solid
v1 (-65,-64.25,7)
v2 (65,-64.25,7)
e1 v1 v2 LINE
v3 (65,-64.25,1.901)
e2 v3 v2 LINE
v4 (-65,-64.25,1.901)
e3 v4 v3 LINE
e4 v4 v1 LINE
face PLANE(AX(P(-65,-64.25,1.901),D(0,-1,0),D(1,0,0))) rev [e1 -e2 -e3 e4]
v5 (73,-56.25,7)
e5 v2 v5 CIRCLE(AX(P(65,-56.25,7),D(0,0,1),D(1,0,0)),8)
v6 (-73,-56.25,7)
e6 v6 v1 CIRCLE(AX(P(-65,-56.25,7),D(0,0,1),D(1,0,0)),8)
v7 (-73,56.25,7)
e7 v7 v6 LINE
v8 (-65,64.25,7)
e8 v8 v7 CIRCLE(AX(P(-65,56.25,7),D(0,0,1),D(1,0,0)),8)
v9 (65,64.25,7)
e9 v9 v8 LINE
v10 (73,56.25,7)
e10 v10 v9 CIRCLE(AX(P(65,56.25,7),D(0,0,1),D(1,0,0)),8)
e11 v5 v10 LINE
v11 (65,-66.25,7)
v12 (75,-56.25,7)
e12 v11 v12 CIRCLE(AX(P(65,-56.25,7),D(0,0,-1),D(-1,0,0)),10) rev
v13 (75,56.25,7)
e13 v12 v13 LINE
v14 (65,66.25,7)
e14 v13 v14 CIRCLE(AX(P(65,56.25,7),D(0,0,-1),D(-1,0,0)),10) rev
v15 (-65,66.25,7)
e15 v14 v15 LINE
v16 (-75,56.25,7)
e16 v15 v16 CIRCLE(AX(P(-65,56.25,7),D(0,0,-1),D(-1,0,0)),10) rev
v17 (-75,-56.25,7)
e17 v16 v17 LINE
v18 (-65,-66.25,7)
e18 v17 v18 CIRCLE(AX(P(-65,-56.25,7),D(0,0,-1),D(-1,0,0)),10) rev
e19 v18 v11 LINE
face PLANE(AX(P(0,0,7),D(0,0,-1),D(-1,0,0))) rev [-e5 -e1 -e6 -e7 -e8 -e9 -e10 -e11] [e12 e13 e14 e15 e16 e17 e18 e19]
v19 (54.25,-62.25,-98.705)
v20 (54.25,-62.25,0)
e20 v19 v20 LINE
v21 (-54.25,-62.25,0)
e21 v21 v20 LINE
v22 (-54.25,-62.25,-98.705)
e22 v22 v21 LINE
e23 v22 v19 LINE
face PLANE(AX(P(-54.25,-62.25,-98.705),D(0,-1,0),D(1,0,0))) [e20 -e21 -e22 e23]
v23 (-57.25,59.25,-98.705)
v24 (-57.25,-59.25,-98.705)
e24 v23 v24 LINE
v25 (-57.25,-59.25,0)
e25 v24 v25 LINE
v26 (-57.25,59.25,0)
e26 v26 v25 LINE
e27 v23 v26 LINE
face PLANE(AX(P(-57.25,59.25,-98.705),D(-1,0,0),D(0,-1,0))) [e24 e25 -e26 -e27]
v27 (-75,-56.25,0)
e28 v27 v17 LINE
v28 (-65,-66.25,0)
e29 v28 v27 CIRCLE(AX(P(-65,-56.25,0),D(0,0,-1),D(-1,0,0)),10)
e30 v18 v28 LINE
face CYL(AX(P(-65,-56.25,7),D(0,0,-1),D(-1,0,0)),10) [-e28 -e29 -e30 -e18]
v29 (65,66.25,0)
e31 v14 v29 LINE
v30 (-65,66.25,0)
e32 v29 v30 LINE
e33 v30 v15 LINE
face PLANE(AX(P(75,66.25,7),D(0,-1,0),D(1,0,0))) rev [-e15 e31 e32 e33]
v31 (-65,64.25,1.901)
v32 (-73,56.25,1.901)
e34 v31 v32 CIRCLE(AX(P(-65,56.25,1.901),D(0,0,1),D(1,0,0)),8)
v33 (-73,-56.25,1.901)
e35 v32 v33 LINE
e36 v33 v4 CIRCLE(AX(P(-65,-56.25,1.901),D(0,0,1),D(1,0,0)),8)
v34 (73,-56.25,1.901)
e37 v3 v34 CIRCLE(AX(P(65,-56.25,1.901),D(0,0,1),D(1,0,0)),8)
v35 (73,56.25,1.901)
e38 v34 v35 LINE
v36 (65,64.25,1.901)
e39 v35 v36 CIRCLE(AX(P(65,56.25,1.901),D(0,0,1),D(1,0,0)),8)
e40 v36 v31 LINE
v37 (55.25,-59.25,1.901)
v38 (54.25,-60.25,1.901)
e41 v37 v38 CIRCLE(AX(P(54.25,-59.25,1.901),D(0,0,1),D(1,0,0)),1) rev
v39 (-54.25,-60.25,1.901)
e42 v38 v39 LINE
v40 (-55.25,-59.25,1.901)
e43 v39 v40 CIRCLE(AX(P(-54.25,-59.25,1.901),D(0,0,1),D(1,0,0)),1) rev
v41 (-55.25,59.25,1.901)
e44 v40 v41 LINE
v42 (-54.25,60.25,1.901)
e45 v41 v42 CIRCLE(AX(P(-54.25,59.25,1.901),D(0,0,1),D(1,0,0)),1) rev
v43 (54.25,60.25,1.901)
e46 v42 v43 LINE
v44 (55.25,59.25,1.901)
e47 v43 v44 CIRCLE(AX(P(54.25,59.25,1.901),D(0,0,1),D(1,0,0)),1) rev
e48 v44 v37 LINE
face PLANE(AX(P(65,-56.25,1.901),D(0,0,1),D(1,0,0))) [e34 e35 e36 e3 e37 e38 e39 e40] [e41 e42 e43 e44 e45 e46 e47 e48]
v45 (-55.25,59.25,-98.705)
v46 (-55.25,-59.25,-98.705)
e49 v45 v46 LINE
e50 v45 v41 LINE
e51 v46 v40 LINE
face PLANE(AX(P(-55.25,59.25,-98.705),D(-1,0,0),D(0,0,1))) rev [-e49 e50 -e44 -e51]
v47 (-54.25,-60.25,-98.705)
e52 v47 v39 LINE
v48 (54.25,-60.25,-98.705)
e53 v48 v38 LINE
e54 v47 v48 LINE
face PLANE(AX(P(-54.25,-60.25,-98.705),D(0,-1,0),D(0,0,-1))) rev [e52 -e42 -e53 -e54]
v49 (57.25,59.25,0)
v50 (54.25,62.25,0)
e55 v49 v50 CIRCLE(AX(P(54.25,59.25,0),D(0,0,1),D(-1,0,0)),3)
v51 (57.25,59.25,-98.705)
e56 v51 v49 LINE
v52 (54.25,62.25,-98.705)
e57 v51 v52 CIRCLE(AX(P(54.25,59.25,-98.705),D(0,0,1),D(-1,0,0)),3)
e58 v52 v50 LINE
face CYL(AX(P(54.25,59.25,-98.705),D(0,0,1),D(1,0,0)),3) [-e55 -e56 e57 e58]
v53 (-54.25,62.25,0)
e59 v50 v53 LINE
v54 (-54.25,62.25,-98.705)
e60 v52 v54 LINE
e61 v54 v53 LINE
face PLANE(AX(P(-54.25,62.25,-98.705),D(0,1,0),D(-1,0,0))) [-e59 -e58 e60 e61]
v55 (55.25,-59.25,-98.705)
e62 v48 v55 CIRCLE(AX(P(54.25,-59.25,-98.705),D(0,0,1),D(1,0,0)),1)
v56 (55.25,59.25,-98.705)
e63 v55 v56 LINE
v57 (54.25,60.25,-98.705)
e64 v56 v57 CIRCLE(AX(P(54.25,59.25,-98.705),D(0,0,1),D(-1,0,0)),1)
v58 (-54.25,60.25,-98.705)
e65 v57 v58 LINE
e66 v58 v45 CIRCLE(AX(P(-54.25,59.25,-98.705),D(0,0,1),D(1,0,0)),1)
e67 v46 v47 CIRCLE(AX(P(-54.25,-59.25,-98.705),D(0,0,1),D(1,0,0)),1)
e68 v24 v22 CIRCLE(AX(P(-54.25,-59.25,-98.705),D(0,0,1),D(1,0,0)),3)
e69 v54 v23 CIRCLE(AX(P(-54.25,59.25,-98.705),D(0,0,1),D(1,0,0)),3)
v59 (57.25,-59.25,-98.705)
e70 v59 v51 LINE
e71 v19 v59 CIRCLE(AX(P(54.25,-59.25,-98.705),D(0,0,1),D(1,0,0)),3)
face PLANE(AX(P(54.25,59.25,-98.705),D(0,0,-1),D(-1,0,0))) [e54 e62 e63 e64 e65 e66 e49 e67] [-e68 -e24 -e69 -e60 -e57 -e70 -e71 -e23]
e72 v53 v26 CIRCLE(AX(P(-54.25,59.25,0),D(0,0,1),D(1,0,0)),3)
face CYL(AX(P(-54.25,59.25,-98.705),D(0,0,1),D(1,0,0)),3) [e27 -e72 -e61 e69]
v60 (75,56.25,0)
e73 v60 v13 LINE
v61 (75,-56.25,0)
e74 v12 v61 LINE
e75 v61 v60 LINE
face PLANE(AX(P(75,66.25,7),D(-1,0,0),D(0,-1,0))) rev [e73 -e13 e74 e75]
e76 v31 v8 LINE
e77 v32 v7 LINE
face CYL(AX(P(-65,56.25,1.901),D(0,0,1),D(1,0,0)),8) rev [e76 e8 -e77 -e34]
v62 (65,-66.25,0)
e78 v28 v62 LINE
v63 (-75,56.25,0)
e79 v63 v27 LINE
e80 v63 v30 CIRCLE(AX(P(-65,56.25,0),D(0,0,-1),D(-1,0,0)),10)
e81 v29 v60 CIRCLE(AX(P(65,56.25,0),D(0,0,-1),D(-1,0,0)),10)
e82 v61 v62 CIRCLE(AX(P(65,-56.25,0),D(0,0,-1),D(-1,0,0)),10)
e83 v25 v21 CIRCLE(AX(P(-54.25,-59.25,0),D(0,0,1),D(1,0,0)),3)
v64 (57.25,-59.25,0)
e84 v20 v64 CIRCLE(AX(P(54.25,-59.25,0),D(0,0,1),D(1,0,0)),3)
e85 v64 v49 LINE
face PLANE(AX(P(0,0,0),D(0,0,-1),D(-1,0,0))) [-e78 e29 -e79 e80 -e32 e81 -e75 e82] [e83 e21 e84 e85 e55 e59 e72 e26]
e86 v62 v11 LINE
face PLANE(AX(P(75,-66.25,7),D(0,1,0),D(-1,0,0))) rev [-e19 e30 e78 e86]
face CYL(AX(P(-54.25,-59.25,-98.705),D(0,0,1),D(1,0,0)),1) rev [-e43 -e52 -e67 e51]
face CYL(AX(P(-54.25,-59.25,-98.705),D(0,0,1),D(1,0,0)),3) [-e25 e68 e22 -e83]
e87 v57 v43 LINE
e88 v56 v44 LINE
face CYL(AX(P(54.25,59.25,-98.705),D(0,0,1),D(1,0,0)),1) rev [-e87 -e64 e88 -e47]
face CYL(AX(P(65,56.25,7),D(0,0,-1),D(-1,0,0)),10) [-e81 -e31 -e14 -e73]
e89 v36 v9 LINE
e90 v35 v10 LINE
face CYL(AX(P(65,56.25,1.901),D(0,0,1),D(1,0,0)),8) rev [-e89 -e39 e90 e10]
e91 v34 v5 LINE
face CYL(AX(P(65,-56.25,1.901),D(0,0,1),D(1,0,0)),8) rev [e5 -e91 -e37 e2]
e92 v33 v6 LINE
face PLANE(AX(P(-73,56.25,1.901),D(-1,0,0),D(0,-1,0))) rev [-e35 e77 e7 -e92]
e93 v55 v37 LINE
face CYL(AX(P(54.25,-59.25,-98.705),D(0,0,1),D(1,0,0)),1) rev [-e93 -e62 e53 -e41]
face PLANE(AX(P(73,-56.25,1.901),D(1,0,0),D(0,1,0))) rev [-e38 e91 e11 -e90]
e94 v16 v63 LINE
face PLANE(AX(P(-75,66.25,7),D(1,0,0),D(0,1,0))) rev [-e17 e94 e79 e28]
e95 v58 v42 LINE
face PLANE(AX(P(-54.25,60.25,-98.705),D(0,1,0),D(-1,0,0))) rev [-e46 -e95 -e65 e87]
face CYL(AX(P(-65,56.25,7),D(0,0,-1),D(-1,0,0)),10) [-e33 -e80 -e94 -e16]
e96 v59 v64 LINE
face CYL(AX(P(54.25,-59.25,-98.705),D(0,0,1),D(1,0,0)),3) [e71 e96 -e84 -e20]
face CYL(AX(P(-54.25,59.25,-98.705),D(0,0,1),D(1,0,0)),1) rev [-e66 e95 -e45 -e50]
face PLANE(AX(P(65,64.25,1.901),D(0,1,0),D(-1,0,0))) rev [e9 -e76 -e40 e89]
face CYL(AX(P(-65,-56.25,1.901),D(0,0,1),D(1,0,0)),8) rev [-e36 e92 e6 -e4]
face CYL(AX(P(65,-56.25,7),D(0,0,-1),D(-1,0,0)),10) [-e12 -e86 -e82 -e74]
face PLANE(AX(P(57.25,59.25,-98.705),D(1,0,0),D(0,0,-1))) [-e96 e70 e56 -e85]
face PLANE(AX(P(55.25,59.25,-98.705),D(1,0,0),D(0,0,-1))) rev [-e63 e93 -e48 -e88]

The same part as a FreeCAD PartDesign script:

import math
import FreeCAD as App
import Part
import Sketcher

V = App.Vector


def edges_at(feature, points):
    """Names of the edges that pass closest to the given points."""
    edges = feature.Shape.Edges
    near = lambda p: min(range(len(edges)), key=lambda i: edges[i].distToShape(Part.Vertex(*p))[0])
    return sorted({f"Edge{near(p) + 1}" for p in points})


def add_polygon(sketch, points):
    """Adds a closed chain of lines whose ends are joined by coincident constraints."""
    first, n = sketch.GeometryCount, len(points)
    for a, b in zip(points, points[1:] + points[:1]):
        sketch.addGeometry(Part.LineSegment(App.Vector(*a, 0), App.Vector(*b, 0)), False)
    for i in range(n):
        sketch.addConstraint(Sketcher.Constraint("Coincident", first + i, 2, first + (i + 1) % n, 1))

doc = App.newDocument("Part")
body = doc.addObject("PartDesign::Body", "Body")

sketch1 = body.newObject("Sketcher::SketchObject", "Sketch")
sketch1.AttachmentSupport = (doc.getObject("XY_Plane"), [""])
sketch1.MapMode = "FlatFace"
sketch1.addGeometry(Part.LineSegment(V(54.25, 62.25, 0), V(-54.25, 62.25, 0)), False)
sketch1.addGeometry(Part.ArcOfCircle(Part.Circle(V(-54.25, 59.25, 0), V(0, 0, 1), 3), math.radians(90), math.radians(180)), False)
sketch1.addGeometry(Part.LineSegment(V(-57.25, 59.25, 0), V(-57.25, -59.25, 0)), False)
sketch1.addGeometry(Part.ArcOfCircle(Part.Circle(V(-54.25, -59.25, 0), V(0, 0, 1), 3), math.radians(180), math.radians(270)), False)
sketch1.addGeometry(Part.LineSegment(V(-54.25, -62.25, 0), V(54.25, -62.25, 0)), False)
sketch1.addGeometry(Part.ArcOfCircle(Part.Circle(V(54.25, -59.25, 0), V(0, 0, 1), 3), math.radians(-90), math.radians(0)), False)
sketch1.addGeometry(Part.LineSegment(V(57.25, -59.25, 0), V(57.25, 59.25, 0)), False)
sketch1.addGeometry(Part.ArcOfCircle(Part.Circle(V(54.25, 59.25, 0), V(0, 0, 1), 3), math.radians(0), math.radians(90)), False)
sketch1.addGeometry(Part.ArcOfCircle(Part.Circle(V(-54.25, 59.25, 0), V(0, 0, 1), 1), math.radians(90), math.radians(180)), False)
sketch1.addGeometry(Part.LineSegment(V(-54.25, 60.25, 0), V(54.25, 60.25, 0)), False)
sketch1.addGeometry(Part.ArcOfCircle(Part.Circle(V(54.25, 59.25, 0), V(0, 0, 1), 1), math.radians(0), math.radians(90)), False)
sketch1.addGeometry(Part.LineSegment(V(55.25, 59.25, 0), V(55.25, -59.25, 0)), False)
sketch1.addGeometry(Part.ArcOfCircle(Part.Circle(V(54.25, -59.25, 0), V(0, 0, 1), 1), math.radians(-90), math.radians(0)), False)
sketch1.addGeometry(Part.LineSegment(V(54.25, -60.25, 0), V(-54.25, -60.25, 0)), False)
sketch1.addGeometry(Part.ArcOfCircle(Part.Circle(V(-54.25, -59.25, 0), V(0, 0, 1), 1), math.radians(-180), math.radians(-90)), False)
sketch1.addGeometry(Part.LineSegment(V(-55.25, -59.25, 0), V(-55.25, 59.25, 0)), False)
sketch1.addConstraint(Sketcher.Constraint("Tangent", 0, 2, 1, 1))
sketch1.addConstraint(Sketcher.Constraint("Tangent", 1, 2, 2, 1))
sketch1.addConstraint(Sketcher.Constraint("Tangent", 2, 2, 3, 1))
sketch1.addConstraint(Sketcher.Constraint("Tangent", 3, 2, 4, 1))
sketch1.addConstraint(Sketcher.Constraint("Tangent", 4, 2, 5, 1))
sketch1.addConstraint(Sketcher.Constraint("Tangent", 5, 2, 6, 1))
sketch1.addConstraint(Sketcher.Constraint("Tangent", 6, 2, 7, 1))
sketch1.addConstraint(Sketcher.Constraint("Tangent", 7, 2, 0, 1))
sketch1.addConstraint(Sketcher.Constraint("Tangent", 8, 1, 9, 1))
sketch1.addConstraint(Sketcher.Constraint("Tangent", 9, 2, 10, 2))
sketch1.addConstraint(Sketcher.Constraint("Tangent", 10, 1, 11, 1))
sketch1.addConstraint(Sketcher.Constraint("Tangent", 11, 2, 12, 2))
sketch1.addConstraint(Sketcher.Constraint("Tangent", 12, 1, 13, 1))
sketch1.addConstraint(Sketcher.Constraint("Tangent", 13, 2, 14, 2))
sketch1.addConstraint(Sketcher.Constraint("Tangent", 14, 1, 15, 1))
sketch1.addConstraint(Sketcher.Constraint("Tangent", 15, 2, 8, 2))
sketch1.addConstraint(Sketcher.Constraint("Horizontal", 0))
sketch1.addConstraint(Sketcher.Constraint("Vertical", 2))
sketch1.addConstraint(Sketcher.Constraint("Horizontal", 4))
sketch1.addConstraint(Sketcher.Constraint("Vertical", 6))
sketch1.addConstraint(Sketcher.Constraint("Horizontal", 9))
sketch1.addConstraint(Sketcher.Constraint("Vertical", 11))
sketch1.addConstraint(Sketcher.Constraint("Horizontal", 13))
sketch1.addConstraint(Sketcher.Constraint("Vertical", 15))
sketch1.addConstraint(Sketcher.Constraint("Coincident", 8, 3, 1, 3))
sketch1.addConstraint(Sketcher.Constraint("Coincident", 10, 3, 7, 3))
sketch1.addConstraint(Sketcher.Constraint("Coincident", 12, 3, 5, 3))
sketch1.addConstraint(Sketcher.Constraint("Equal", 1, 3))
sketch1.addConstraint(Sketcher.Constraint("Equal", 3, 5))
sketch1.addConstraint(Sketcher.Constraint("Equal", 5, 7))
sketch1.addConstraint(Sketcher.Constraint("Equal", 12, 14))
sketch1.addConstraint(Sketcher.Constraint("Symmetric", 1, 3, 5, 3, -1, 1))
sketch1.addConstraint(Sketcher.Constraint("Radius", 1, 3.0))
sketch1.addConstraint(Sketcher.Constraint("Radius", 8, 1.0))
sketch1.addConstraint(Sketcher.Constraint("DistanceX", 0, 2, 0, 1, 108.5))
sketch1.addConstraint(Sketcher.Constraint("DistanceY", 2, 2, 2, 1, 118.5))
pad1 = body.newObject("PartDesign::Pad", "Pad")
pad1.Profile = sketch1
pad1.Length = 98.705
pad1.Reversed = True

sketch2 = body.newObject("Sketcher::SketchObject", "Sketch001")
sketch2.AttachmentSupport = (doc.getObject("XY_Plane"), [""])
sketch2.MapMode = "FlatFace"
sketch2.AttachmentOffset = App.Placement(V(0, 0, 7), App.Rotation())
add_polygon(sketch2, [(-75, 66.25), (-75, -66.25), (75, -66.25), (75, 66.25)])
sketch2.addGeometry(Part.LineSegment(V(54.25, -60.25, 0), V(-54.25, -60.25, 0)), False)
sketch2.addGeometry(Part.ArcOfCircle(Part.Circle(V(-54.25, -59.25, 0), V(0, 0, 1), 1), math.radians(-180), math.radians(-90)), False)
sketch2.addGeometry(Part.LineSegment(V(-55.25, -59.25, 0), V(-55.25, 59.25, 0)), False)
sketch2.addGeometry(Part.ArcOfCircle(Part.Circle(V(-54.25, 59.25, 0), V(0, 0, 1), 1), math.radians(90), math.radians(180)), False)
sketch2.addGeometry(Part.LineSegment(V(-54.25, 60.25, 0), V(54.25, 60.25, 0)), False)
sketch2.addGeometry(Part.ArcOfCircle(Part.Circle(V(54.25, 59.25, 0), V(0, 0, 1), 1), math.radians(0), math.radians(90)), False)
sketch2.addGeometry(Part.LineSegment(V(55.25, 59.25, 0), V(55.25, -59.25, 0)), False)
sketch2.addGeometry(Part.ArcOfCircle(Part.Circle(V(54.25, -59.25, 0), V(0, 0, 1), 1), math.radians(-90), math.radians(0)), False)
sketch2.addConstraint(Sketcher.Constraint("Tangent", 4, 2, 5, 2))
sketch2.addConstraint(Sketcher.Constraint("Tangent", 5, 1, 6, 1))
sketch2.addConstraint(Sketcher.Constraint("Tangent", 6, 2, 7, 2))
sketch2.addConstraint(Sketcher.Constraint("Tangent", 7, 1, 8, 1))
sketch2.addConstraint(Sketcher.Constraint("Tangent", 8, 2, 9, 2))
sketch2.addConstraint(Sketcher.Constraint("Tangent", 9, 1, 10, 1))
sketch2.addConstraint(Sketcher.Constraint("Tangent", 10, 2, 11, 2))
sketch2.addConstraint(Sketcher.Constraint("Tangent", 11, 1, 4, 1))
sketch2.addConstraint(Sketcher.Constraint("Vertical", 0))
sketch2.addConstraint(Sketcher.Constraint("Horizontal", 1))
sketch2.addConstraint(Sketcher.Constraint("Vertical", 2))
sketch2.addConstraint(Sketcher.Constraint("Horizontal", 3))
sketch2.addConstraint(Sketcher.Constraint("Horizontal", 4))
sketch2.addConstraint(Sketcher.Constraint("Vertical", 6))
sketch2.addConstraint(Sketcher.Constraint("Horizontal", 8))
sketch2.addConstraint(Sketcher.Constraint("Vertical", 10))
sketch2.addConstraint(Sketcher.Constraint("Equal", 5, 7))
sketch2.addConstraint(Sketcher.Constraint("Equal", 7, 9))
sketch2.addConstraint(Sketcher.Constraint("Equal", 9, 11))
sketch2.addConstraint(Sketcher.Constraint("Symmetric", 5, 3, 9, 3, -1, 1))
sketch2.addConstraint(Sketcher.Constraint("Symmetric", 0, 2, 2, 2, -1, 1))
sketch2.addConstraint(Sketcher.Constraint("Radius", 5, 1.0))
sketch2.addConstraint(Sketcher.Constraint("DistanceX", 1, 1, 1, 2, 150.0))
sketch2.addConstraint(Sketcher.Constraint("DistanceX", 4, 2, 4, 1, 108.5))
sketch2.addConstraint(Sketcher.Constraint("DistanceY", 0, 2, 0, 1, 132.5))
sketch2.addConstraint(Sketcher.Constraint("DistanceY", 6, 1, 6, 2, 118.5))
pad2 = body.newObject("PartDesign::Pad", "Pad001")
pad2.Profile = sketch2
pad2.Length = 7
pad2.Reversed = True
doc.recompute()

fillet = body.newObject("PartDesign::Fillet", "Fillet")
fillet.Base = (pad2, edges_at(pad2, [
    (-75, 66.25, 3.5),
    (-75, -66.25, 3.5),
    (75, -66.25, 3.5),
    (75, 66.25, 3.5),
]))
fillet.Radius = 10

sketch3 = body.newObject("Sketcher::SketchObject", "Sketch002")
sketch3.AttachmentSupport = (doc.getObject("XY_Plane"), [""])
sketch3.MapMode = "FlatFace"
sketch3.AttachmentOffset = App.Placement(V(0, 0, 7), App.Rotation())
sketch3.addGeometry(Part.LineSegment(V(73, -56.25, 0), V(73, 56.25, 0)), False)
sketch3.addGeometry(Part.ArcOfCircle(Part.Circle(V(65, 56.25, 0), V(0, 0, 1), 8), math.radians(0), math.radians(90)), False)
sketch3.addGeometry(Part.LineSegment(V(65, 64.25, 0), V(-65, 64.25, 0)), False)
sketch3.addGeometry(Part.ArcOfCircle(Part.Circle(V(-65, 56.25, 0), V(0, 0, 1), 8), math.radians(90), math.radians(180)), False)
sketch3.addGeometry(Part.LineSegment(V(-73, 56.25, 0), V(-73, -56.25, 0)), False)
sketch3.addGeometry(Part.ArcOfCircle(Part.Circle(V(-65, -56.25, 0), V(0, 0, 1), 8), math.radians(-180), math.radians(-90)), False)
sketch3.addGeometry(Part.LineSegment(V(-65, -64.25, 0), V(65, -64.25, 0)), False)
sketch3.addGeometry(Part.ArcOfCircle(Part.Circle(V(65, -56.25, 0), V(0, 0, 1), 8), math.radians(-90), math.radians(0)), False)
sketch3.addConstraint(Sketcher.Constraint("Tangent", 0, 2, 1, 1))
sketch3.addConstraint(Sketcher.Constraint("Tangent", 1, 2, 2, 1))
sketch3.addConstraint(Sketcher.Constraint("Tangent", 2, 2, 3, 1))
sketch3.addConstraint(Sketcher.Constraint("Tangent", 3, 2, 4, 1))
sketch3.addConstraint(Sketcher.Constraint("Tangent", 4, 2, 5, 1))
sketch3.addConstraint(Sketcher.Constraint("Tangent", 5, 2, 6, 1))
sketch3.addConstraint(Sketcher.Constraint("Tangent", 6, 2, 7, 1))
sketch3.addConstraint(Sketcher.Constraint("Tangent", 7, 2, 0, 1))
sketch3.addConstraint(Sketcher.Constraint("Vertical", 0))
sketch3.addConstraint(Sketcher.Constraint("Horizontal", 2))
sketch3.addConstraint(Sketcher.Constraint("Vertical", 4))
sketch3.addConstraint(Sketcher.Constraint("Horizontal", 6))
sketch3.addConstraint(Sketcher.Constraint("Equal", 1, 3))
sketch3.addConstraint(Sketcher.Constraint("Equal", 3, 5))
sketch3.addConstraint(Sketcher.Constraint("Equal", 5, 7))
sketch3.addConstraint(Sketcher.Constraint("Symmetric", 1, 3, 5, 3, -1, 1))
sketch3.addConstraint(Sketcher.Constraint("Radius", 1, 8.0))
sketch3.addConstraint(Sketcher.Constraint("DistanceX", 2, 2, 2, 1, 130.0))
sketch3.addConstraint(Sketcher.Constraint("DistanceY", 0, 1, 0, 2, 112.5))
pocket1 = body.newObject("PartDesign::Pocket", "Pocket")
pocket1.Profile = sketch3
pocket1.Length = 5.099

doc.recompute()
